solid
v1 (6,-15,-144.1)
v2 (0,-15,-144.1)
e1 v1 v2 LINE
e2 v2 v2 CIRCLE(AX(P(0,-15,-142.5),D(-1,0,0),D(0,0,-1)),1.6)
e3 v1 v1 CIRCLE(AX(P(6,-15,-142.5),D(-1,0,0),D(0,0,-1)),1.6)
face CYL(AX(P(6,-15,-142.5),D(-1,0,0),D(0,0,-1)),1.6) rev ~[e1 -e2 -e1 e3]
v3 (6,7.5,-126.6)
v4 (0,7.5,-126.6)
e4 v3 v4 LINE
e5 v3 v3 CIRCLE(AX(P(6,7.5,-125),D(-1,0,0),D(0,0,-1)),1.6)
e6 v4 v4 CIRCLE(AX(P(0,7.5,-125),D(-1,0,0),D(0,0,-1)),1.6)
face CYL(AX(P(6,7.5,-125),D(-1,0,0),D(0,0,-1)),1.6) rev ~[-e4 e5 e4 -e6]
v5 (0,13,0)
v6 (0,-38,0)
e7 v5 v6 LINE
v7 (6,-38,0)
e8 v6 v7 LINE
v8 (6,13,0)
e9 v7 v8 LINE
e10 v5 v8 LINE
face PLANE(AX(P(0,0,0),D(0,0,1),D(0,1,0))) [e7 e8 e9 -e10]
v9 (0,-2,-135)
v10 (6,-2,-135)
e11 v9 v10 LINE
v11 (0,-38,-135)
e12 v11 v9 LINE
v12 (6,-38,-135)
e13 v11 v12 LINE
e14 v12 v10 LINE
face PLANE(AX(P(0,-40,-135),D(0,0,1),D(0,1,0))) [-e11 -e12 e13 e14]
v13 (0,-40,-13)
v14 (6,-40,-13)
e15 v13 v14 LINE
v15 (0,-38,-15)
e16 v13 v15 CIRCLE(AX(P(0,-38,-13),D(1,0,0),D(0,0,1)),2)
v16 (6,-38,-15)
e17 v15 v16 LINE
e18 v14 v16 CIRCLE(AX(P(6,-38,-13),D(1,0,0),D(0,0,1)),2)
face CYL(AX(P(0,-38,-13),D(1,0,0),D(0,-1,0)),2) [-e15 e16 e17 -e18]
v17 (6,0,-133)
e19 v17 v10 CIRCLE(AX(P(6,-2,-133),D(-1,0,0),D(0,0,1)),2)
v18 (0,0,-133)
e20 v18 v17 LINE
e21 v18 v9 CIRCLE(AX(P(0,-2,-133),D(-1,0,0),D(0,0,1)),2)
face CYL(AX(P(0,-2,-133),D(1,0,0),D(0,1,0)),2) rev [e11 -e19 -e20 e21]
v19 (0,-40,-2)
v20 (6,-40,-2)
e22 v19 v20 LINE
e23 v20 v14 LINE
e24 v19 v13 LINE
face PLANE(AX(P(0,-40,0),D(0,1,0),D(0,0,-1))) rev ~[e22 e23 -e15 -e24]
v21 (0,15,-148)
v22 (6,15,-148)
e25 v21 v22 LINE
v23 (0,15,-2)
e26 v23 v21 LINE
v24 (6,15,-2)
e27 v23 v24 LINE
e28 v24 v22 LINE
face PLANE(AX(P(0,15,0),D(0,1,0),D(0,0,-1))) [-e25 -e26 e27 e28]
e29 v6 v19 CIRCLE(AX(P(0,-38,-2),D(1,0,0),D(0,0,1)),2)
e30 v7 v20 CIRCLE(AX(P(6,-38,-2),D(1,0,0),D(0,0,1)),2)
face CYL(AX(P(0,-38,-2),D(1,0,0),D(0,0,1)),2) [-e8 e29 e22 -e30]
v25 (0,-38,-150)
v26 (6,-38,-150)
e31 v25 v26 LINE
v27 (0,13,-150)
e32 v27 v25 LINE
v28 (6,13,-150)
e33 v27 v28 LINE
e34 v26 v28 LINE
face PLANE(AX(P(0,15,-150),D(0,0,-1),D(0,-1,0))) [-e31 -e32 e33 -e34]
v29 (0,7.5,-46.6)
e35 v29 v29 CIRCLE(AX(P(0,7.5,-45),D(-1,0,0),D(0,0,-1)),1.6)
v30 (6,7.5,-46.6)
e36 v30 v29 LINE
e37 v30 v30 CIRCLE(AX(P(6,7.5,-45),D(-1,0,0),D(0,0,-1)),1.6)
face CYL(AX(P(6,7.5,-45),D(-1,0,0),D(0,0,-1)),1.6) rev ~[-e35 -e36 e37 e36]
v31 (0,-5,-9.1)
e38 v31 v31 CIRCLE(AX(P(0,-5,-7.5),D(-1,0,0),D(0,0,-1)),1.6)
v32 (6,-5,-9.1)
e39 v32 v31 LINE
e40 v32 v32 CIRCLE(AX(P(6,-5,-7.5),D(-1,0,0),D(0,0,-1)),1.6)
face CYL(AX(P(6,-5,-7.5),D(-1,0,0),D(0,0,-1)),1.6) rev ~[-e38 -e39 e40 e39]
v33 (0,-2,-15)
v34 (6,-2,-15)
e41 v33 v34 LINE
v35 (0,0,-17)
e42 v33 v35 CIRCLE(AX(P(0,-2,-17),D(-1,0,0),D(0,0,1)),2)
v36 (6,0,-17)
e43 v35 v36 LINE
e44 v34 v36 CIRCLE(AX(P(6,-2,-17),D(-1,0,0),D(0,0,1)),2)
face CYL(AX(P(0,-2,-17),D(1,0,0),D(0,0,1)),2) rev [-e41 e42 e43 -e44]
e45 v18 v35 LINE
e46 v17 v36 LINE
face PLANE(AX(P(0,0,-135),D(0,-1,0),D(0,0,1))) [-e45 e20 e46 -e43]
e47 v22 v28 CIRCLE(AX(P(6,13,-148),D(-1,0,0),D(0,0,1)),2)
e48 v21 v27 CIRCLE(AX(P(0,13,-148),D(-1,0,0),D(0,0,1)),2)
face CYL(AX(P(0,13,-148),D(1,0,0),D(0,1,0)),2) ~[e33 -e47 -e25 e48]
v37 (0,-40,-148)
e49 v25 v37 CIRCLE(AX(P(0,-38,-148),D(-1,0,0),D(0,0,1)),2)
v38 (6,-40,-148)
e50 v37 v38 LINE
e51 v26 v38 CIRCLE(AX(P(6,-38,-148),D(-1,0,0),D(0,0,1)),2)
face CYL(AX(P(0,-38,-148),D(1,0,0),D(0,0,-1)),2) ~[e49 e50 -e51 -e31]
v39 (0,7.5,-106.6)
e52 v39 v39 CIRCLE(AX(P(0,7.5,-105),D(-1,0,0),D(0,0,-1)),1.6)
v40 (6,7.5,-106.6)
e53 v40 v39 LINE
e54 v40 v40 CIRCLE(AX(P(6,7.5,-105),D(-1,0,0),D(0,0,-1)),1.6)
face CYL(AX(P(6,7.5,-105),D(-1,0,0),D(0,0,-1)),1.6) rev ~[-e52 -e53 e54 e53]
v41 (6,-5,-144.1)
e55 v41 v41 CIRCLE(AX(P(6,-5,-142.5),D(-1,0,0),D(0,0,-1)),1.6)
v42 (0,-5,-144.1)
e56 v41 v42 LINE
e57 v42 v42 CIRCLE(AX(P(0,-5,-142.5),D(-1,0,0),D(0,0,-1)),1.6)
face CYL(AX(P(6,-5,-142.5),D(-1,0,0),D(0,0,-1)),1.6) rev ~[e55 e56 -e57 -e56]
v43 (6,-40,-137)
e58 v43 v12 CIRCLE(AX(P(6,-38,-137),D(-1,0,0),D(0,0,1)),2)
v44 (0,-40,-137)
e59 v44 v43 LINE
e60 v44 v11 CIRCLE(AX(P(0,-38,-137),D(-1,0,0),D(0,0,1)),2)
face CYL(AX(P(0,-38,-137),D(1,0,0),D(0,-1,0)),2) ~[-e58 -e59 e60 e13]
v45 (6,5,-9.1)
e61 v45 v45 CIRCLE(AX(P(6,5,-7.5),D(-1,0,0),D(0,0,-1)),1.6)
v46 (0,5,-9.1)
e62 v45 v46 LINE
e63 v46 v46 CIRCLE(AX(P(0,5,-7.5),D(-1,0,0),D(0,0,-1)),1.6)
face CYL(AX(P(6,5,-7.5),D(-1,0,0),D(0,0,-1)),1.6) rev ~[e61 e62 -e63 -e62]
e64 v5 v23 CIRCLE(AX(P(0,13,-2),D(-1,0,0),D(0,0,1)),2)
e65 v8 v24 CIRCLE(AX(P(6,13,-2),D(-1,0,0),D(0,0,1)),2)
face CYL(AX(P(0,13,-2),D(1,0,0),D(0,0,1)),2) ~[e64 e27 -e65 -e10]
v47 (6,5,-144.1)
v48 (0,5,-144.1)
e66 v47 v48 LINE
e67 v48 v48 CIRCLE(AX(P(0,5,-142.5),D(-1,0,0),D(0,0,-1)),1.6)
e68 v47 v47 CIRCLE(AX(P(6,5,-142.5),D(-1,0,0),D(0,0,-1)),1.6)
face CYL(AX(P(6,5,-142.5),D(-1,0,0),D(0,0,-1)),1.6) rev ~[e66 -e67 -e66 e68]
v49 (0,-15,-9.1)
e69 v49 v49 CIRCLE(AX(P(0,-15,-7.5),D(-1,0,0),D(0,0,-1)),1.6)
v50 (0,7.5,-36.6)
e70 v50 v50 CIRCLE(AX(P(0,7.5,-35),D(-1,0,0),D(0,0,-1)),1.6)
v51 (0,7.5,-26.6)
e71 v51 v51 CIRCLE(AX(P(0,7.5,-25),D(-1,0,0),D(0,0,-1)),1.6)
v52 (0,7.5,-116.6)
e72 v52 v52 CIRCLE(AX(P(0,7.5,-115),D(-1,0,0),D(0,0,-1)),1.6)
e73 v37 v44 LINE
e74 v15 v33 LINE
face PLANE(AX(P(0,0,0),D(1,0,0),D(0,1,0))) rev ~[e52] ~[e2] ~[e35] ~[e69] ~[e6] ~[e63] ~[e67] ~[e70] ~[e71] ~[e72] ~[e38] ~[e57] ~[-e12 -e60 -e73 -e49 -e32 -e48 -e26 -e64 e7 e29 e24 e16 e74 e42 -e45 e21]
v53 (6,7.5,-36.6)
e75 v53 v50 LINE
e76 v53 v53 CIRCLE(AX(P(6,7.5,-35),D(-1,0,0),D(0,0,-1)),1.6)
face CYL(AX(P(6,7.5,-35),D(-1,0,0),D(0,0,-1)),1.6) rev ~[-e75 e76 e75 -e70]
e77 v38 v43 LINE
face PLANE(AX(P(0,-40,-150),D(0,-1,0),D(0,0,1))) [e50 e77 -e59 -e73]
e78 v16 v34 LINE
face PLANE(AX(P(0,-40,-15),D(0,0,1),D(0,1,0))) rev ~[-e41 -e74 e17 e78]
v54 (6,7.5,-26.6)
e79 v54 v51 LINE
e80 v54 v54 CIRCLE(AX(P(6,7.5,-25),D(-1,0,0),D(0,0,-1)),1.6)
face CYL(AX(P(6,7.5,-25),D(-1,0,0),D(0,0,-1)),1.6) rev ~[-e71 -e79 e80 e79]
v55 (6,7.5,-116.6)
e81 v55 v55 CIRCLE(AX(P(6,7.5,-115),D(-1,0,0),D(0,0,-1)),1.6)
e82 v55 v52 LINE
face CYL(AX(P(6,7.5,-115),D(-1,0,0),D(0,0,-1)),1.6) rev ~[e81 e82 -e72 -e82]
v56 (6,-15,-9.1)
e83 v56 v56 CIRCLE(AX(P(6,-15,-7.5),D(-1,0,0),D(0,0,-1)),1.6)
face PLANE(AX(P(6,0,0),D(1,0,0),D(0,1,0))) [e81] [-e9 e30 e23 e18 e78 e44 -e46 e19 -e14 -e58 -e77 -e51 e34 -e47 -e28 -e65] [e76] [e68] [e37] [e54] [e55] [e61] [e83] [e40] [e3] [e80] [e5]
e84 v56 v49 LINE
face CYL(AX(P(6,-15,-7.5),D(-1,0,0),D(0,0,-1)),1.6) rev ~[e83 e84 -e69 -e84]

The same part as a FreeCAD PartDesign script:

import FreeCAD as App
import Part
import Sketcher
from FreeCAD import Vector
Q = App.Units.Quantity


def edges_at(feature, points):
    """Names of the edges that pass closest to the given points."""
    edges = feature.Shape.Edges
    near = lambda p: min(range(len(edges)), key=lambda i: edges[i].distToShape(Part.Vertex(*p))[0])
    return sorted({f"Edge{near(p) + 1}" for p in points})


def add_polygon(sketch, points):
    """Adds a closed chain of lines whose ends are joined by coincident constraints."""
    first, n = sketch.GeometryCount, len(points)
    for a, b in zip(points, points[1:] + points[:1]):
        sketch.addGeometry(Part.LineSegment(App.Vector(*a, 0), App.Vector(*b, 0)), False)
    for i in range(n):
        sketch.addConstraint(Sketcher.Constraint("Coincident", first + i, 2, first + (i + 1) % n, 1))

doc = App.newDocument("Part")
body = doc.addObject("PartDesign::Body", "Body")

sketch1 = body.newObject("Sketcher::SketchObject", "Sketch")
sketch1.AttachmentSupport = (doc.getObject("YZ_Plane"), [""])
sketch1.MapMode = "FlatFace"
add_polygon(sketch1, [(15, 0), (-40, 0), (-40, -15), (0, -15), (0, -135), (-40, -135), (-40, -150), (15, -150)])
sketch1.addConstraint([
    Sketcher.Constraint("Horizontal", 0),
    Sketcher.Constraint("Vertical", 1),
    Sketcher.Constraint("Horizontal", 2),
    Sketcher.Constraint("Vertical", 3),
    Sketcher.Constraint("Horizontal", 4),
    Sketcher.Constraint("Vertical", 5),
    Sketcher.Constraint("Horizontal", 6),
    Sketcher.Constraint("Vertical", 7),
    Sketcher.Constraint("PointOnObject", 0, 2, -1),
    Sketcher.Constraint("PointOnObject", 2, 2, -2),
    Sketcher.Constraint("Vertical", 1, 2, 4, 2),
    Sketcher.Constraint("Equal", 1, 5),
    Sketcher.Constraint("DistanceX", 2, 1, 2, 2, Q("40 mm")),
    Sketcher.Constraint("DistanceY", 1, 2, 1, 1, Q("15 mm")),
    Sketcher.Constraint("DistanceY", 7, 1, 7, 2, Q("150 mm")),
    Sketcher.Constraint("DistanceX", -1, 1, 6, 2, Q("15 mm")),
])
pad1 = body.newObject("PartDesign::Pad", "Pad")
pad1.Profile = sketch1
pad1.Length = 6

sketch2 = body.newObject("Sketcher::SketchObject", "Sketch001")
sketch2.AttachmentSupport = (doc.getObject("YZ_Plane"), [""])
sketch2.MapMode = "FlatFace"
sketch2.AttachmentOffset = App.Placement(Vector(0, 0, 6), App.Rotation())
sketch2.addGeometry([
    Part.Circle(Vector(5, -7.5, 0), Vector(0, 0, 1), 1.6),
    Part.Circle(Vector(-5, -7.5, 0), Vector(0, 0, 1), 1.6),
    Part.Circle(Vector(-15, -7.5, 0), Vector(0, 0, 1), 1.6),
    Part.Circle(Vector(7.5, -25, 0), Vector(0, 0, 1), 1.6),
    Part.Circle(Vector(7.5, -35, 0), Vector(0, 0, 1), 1.6),
    Part.Circle(Vector(7.5, -45, 0), Vector(0, 0, 1), 1.6),
    Part.Circle(Vector(-15, -142.5, 0), Vector(0, 0, 1), 1.6),
    Part.Circle(Vector(-5, -142.5, 0), Vector(0, 0, 1), 1.6),
    Part.Circle(Vector(5, -142.5, 0), Vector(0, 0, 1), 1.6),
    Part.Circle(Vector(7.5, -125, 0), Vector(0, 0, 1), 1.6),
    Part.Circle(Vector(7.5, -115, 0), Vector(0, 0, 1), 1.6),
    Part.Circle(Vector(7.5, -105, 0), Vector(0, 0, 1), 1.6),
], False)
sketch2.addConstraint([
    Sketcher.Constraint("Equal", 0, 1),
    Sketcher.Constraint("Equal", 1, 2),
    Sketcher.Constraint("Equal", 2, 3),
    Sketcher.Constraint("Equal", 3, 4),
    Sketcher.Constraint("Equal", 4, 5),
    Sketcher.Constraint("Equal", 5, 6),
    Sketcher.Constraint("Equal", 6, 7),
    Sketcher.Constraint("Equal", 7, 8),
    Sketcher.Constraint("Equal", 8, 9),
    Sketcher.Constraint("Equal", 9, 10),
    Sketcher.Constraint("Equal", 10, 11),
    Sketcher.Constraint("Symmetric", 0, 3, 1, 3, -2),
    Sketcher.Constraint("Symmetric", 7, 3, 8, 3, -2),
    Sketcher.Constraint("Horizontal", 1, 3, 2, 3),
    Sketcher.Constraint("Horizontal", 6, 3, 7, 3),
    Sketcher.Constraint("Vertical", 3, 3, 4, 3),
    Sketcher.Constraint("Vertical", 4, 3, 5, 3),
    Sketcher.Constraint("Vertical", 2, 3, 6, 3),
    Sketcher.Constraint("Vertical", 1, 3, 7, 3),
    Sketcher.Constraint("Vertical", 5, 3, 9, 3),
    Sketcher.Constraint("Vertical", 9, 3, 10, 3),
    Sketcher.Constraint("Vertical", 10, 3, 11, 3),
    Sketcher.Constraint("Diameter", 0, Q("3.2 mm")),
    Sketcher.Constraint("DistanceX", -1, 1, 0, 3, Q("5 mm")),
    Sketcher.Constraint("DistanceX", 2, 3, -1, 1, Q("15 mm")),
    Sketcher.Constraint("DistanceY", 3, 3, -1, 1, Q("25 mm")),
    Sketcher.Constraint("DistanceY", 4, 3, -1, 1, Q("35 mm")),
    Sketcher.Constraint("DistanceY", 5, 3, -1, 1, Q("45 mm")),
    Sketcher.Constraint("DistanceY", 9, 3, -1, 1, Q("125 mm")),
    Sketcher.Constraint("DistanceY", 10, 3, -1, 1, Q("115 mm")),
    Sketcher.Constraint("DistanceY", 11, 3, -1, 1, Q("105 mm")),
    Sketcher.Constraint("DistanceY", 6, 3, 2, 3, Q("135 mm")),
    Sketcher.Constraint("DistanceY", 0, 3, -1, 1, Q("7.5 mm")),
    Sketcher.Constraint("DistanceX", -1, 1, 3, 3, Q("7.5 mm")),
])
doc.recompute()
hole = body.newObject("PartDesign::Hole", "Hole")
hole.Profile = sketch2
hole.ThreadType = "None"
hole.Diameter = 3.2
hole.DepthType = "ThroughAll"
doc.recompute()

fillet = body.newObject("PartDesign::Fillet", "Fillet")
fillet.Base = (hole, edges_at(hole, [
    (3, 15, 0),
    (3, -40, -135),
    (3, 15, -150),
    (3, -40, -150),
    (3, 0, -15),
    (3, -40, -15),
    (3, -40, 0),
    (3, 0, -135),
]))
fillet.Radius = 2

doc.recompute()
